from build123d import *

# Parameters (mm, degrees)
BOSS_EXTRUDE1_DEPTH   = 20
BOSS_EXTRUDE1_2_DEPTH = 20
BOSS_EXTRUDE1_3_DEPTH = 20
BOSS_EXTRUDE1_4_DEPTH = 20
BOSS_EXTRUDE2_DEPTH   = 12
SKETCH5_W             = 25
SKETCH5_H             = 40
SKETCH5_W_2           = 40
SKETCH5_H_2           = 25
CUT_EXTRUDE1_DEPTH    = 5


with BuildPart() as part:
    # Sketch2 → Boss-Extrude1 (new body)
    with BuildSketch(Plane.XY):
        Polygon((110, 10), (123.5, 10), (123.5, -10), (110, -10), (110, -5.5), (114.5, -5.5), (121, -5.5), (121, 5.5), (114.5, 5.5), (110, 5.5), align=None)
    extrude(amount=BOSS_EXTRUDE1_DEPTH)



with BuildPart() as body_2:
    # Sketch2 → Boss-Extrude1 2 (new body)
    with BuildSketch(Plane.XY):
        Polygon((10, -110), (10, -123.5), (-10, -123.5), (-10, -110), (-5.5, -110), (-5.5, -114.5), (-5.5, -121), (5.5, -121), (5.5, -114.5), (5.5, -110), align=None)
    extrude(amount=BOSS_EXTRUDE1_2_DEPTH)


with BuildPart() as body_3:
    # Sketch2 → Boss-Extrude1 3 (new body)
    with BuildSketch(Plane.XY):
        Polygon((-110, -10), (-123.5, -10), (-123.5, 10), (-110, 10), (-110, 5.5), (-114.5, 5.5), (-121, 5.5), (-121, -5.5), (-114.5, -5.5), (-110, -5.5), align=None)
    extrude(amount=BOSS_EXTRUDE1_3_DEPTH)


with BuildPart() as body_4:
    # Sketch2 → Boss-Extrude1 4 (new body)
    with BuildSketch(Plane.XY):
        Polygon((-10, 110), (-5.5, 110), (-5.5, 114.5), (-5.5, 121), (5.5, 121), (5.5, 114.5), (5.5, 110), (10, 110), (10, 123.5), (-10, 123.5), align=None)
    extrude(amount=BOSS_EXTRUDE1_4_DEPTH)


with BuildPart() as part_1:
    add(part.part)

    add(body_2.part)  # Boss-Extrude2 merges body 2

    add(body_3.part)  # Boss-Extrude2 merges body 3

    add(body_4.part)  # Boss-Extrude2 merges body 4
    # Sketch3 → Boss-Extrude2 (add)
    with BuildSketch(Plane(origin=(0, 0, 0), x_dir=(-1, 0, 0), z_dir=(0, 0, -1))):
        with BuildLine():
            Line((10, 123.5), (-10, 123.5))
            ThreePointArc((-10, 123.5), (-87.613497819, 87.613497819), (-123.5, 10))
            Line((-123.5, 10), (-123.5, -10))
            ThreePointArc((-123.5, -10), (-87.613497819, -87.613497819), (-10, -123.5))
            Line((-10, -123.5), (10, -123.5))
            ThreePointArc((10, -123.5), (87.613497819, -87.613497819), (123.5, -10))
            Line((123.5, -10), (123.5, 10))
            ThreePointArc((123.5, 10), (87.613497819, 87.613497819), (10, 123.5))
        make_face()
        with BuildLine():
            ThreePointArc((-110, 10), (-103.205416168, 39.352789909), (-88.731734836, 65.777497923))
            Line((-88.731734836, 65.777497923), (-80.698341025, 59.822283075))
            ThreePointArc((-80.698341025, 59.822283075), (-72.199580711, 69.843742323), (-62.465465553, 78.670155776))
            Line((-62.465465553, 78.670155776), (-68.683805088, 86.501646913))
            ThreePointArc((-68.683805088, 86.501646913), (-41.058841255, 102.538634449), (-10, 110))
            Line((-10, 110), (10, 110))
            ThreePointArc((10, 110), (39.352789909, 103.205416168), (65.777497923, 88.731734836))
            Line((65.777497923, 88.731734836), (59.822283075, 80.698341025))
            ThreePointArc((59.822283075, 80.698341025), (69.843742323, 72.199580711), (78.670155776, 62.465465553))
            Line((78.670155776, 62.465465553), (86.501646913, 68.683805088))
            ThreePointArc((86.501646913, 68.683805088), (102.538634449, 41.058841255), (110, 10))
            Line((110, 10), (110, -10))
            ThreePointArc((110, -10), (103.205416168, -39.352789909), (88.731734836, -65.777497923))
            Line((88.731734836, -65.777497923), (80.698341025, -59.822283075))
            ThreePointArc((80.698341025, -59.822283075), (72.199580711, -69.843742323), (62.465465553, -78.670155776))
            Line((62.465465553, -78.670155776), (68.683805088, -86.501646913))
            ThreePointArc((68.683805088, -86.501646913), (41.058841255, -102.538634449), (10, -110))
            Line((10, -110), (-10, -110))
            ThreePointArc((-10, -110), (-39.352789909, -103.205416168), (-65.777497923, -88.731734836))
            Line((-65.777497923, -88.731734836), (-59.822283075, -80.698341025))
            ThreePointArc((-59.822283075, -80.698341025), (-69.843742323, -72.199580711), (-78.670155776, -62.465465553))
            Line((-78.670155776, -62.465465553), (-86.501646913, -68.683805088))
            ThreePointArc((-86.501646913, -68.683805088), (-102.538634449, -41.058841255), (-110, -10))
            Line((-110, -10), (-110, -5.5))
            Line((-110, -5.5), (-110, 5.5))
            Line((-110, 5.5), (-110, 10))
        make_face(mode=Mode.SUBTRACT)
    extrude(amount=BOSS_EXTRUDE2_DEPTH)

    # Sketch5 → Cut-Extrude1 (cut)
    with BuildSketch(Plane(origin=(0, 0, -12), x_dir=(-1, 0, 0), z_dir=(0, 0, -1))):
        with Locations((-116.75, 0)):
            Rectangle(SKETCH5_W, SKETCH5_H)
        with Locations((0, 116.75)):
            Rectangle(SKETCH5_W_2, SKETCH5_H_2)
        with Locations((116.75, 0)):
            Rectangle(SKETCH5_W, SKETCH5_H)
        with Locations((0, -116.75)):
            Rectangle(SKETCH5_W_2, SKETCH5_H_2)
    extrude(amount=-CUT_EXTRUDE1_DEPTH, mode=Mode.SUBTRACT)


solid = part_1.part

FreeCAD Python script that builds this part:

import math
import FreeCAD as App
import Part
import Sketcher

V = App.Vector

doc = App.newDocument("Part")
body = doc.addObject("PartDesign::Body", "Body")

# Sketch on XY plane
sketch1 = body.newObject("Sketcher::SketchObject", "Sketch")
sketch1.AttachmentSupport = (doc.getObject("XY_Plane"), [""])
sketch1.MapMode = "FlatFace"
sketch1.addGeometry([
    Part.LineSegment(V(123.5, 10, 0), V(110, 10, 0)),  # 0
    Part.LineSegment(V(110, 10, 0), V(110, 5.5, 0)),  # 1
    Part.LineSegment(V(110, 5.5, 0), V(121, 5.5, 0)),  # 2
    Part.LineSegment(V(121, 5.5, 0), V(121, -5.5, 0)),  # 3
    Part.LineSegment(V(121, -5.5, 0), V(110, -5.5, 0)),  # 4
    Part.LineSegment(V(110, -5.5, 0), V(110, -10, 0)),  # 5
    Part.LineSegment(V(110, -10, 0), V(123.5, -10, 0)),  # 6
    Part.LineSegment(V(123.5, -10, 0), V(123.5, 10, 0)),  # 7
], False)
sketch1.addConstraint([
    Sketcher.Constraint("Coincident", 0, 2, 1, 1),
    Sketcher.Constraint("Coincident", 1, 2, 2, 1),
    Sketcher.Constraint("Coincident", 2, 2, 3, 1),
    Sketcher.Constraint("Coincident", 3, 2, 4, 1),
    Sketcher.Constraint("Coincident", 4, 2, 5, 1),
    Sketcher.Constraint("Coincident", 5, 2, 6, 1),
    Sketcher.Constraint("Coincident", 6, 2, 7, 1),
    Sketcher.Constraint("Coincident", 7, 2, 0, 1),
    Sketcher.Constraint("Horizontal", 0),
    Sketcher.Constraint("Vertical", 1),
    Sketcher.Constraint("Horizontal", 2),
    Sketcher.Constraint("Vertical", 3),
    Sketcher.Constraint("Horizontal", 4),
    Sketcher.Constraint("Vertical", 5),
    Sketcher.Constraint("Horizontal", 6),
    Sketcher.Constraint("Vertical", 7),
    Sketcher.Constraint("Symmetric", 1, 2, 4, 2, -1),
    Sketcher.Constraint("Equal", 4, 3),
    Sketcher.Constraint("Equal", 1, 5),
    Sketcher.Constraint("DistanceX", 2, 1, 2, 2, 11.0),
    Sketcher.Constraint("DistanceY", 7, 1, 7, 2, 20.0),
    Sketcher.Constraint("DistanceX", 0, 2, 0, 1, 13.5),
    Sketcher.Constraint("DistanceX", -1, 1, 0, 2, 110.0),
])
pad1 = body.newObject("PartDesign::Pad", "Pad")
pad1.Profile = sketch1
pad1.Length = 20
body2 = doc.addObject("PartDesign::Body", "Body001")

# Sketch on XY plane
sketch2 = body2.newObject("Sketcher::SketchObject", "Sketch001")
sketch2.AttachmentSupport = (doc.getObject("XY_Plane001"), [""])
sketch2.MapMode = "FlatFace"
sketch2.addGeometry([
    Part.LineSegment(V(10, -123.5, 0), V(10, -110, 0)),  # 0
    Part.LineSegment(V(10, -110, 0), V(5.5, -110, 0)),  # 1
    Part.LineSegment(V(5.5, -110, 0), V(5.5, -121, 0)),  # 2
    Part.LineSegment(V(5.5, -121, 0), V(-5.5, -121, 0)),  # 3
    Part.LineSegment(V(-5.5, -121, 0), V(-5.5, -110, 0)),  # 4
    Part.LineSegment(V(-5.5, -110, 0), V(-10, -110, 0)),  # 5
    Part.LineSegment(V(-10, -110, 0), V(-10, -123.5, 0)),  # 6
    Part.LineSegment(V(-10, -123.5, 0), V(10, -123.5, 0)),  # 7
], False)
sketch2.addConstraint([
    Sketcher.Constraint("Coincident", 0, 2, 1, 1),
    Sketcher.Constraint("Coincident", 1, 2, 2, 1),
    Sketcher.Constraint("Coincident", 2, 2, 3, 1),
    Sketcher.Constraint("Coincident", 3, 2, 4, 1),
    Sketcher.Constraint("Coincident", 4, 2, 5, 1),
    Sketcher.Constraint("Coincident", 5, 2, 6, 1),
    Sketcher.Constraint("Coincident", 6, 2, 7, 1),
    Sketcher.Constraint("Coincident", 7, 2, 0, 1),
    Sketcher.Constraint("Vertical", 0),
    Sketcher.Constraint("Horizontal", 1),
    Sketcher.Constraint("Vertical", 2),
    Sketcher.Constraint("Horizontal", 3),
    Sketcher.Constraint("Vertical", 4),
    Sketcher.Constraint("Horizontal", 5),
    Sketcher.Constraint("Vertical", 6),
    Sketcher.Constraint("Horizontal", 7),
    Sketcher.Constraint("Symmetric", 1, 2, 4, 2, -2),
    Sketcher.Constraint("Equal", 1, 5),
    Sketcher.Constraint("Equal", 3, 2),
    Sketcher.Constraint("DistanceX", 3, 2, 3, 1, 11.0),
    Sketcher.Constraint("DistanceX", 7, 1, 7, 2, 20.0),
    Sketcher.Constraint("DistanceY", 0, 1, 0, 2, 13.5),
    Sketcher.Constraint("DistanceY", 0, 2, -1, 1, 110.0),
])
pad2 = body2.newObject("PartDesign::Pad", "Pad001")
pad2.Profile = sketch2
pad2.Length = 20
body3 = doc.addObject("PartDesign::Body", "Body002")

# Sketch on XY plane
sketch3 = body3.newObject("Sketcher::SketchObject", "Sketch002")
sketch3.AttachmentSupport = (doc.getObject("XY_Plane002"), [""])
sketch3.MapMode = "FlatFace"
sketch3.addGeometry([
    Part.LineSegment(V(-123.5, -10, 0), V(-110, -10, 0)),  # 0
    Part.LineSegment(V(-110, -10, 0), V(-110, -5.5, 0)),  # 1
    Part.LineSegment(V(-110, -5.5, 0), V(-121, -5.5, 0)),  # 2
    Part.LineSegment(V(-121, -5.5, 0), V(-121, 5.5, 0)),  # 3
    Part.LineSegment(V(-121, 5.5, 0), V(-110, 5.5, 0)),  # 4
    Part.LineSegment(V(-110, 5.5, 0), V(-110, 10, 0)),  # 5
    Part.LineSegment(V(-110, 10, 0), V(-123.5, 10, 0)),  # 6
    Part.LineSegment(V(-123.5, 10, 0), V(-123.5, -10, 0)),  # 7
], False)
sketch3.addConstraint([
    Sketcher.Constraint("Coincident", 0, 2, 1, 1),
    Sketcher.Constraint("Coincident", 1, 2, 2, 1),
    Sketcher.Constraint("Coincident", 2, 2, 3, 1),
    Sketcher.Constraint("Coincident", 3, 2, 4, 1),
    Sketcher.Constraint("Coincident", 4, 2, 5, 1),
    Sketcher.Constraint("Coincident", 5, 2, 6, 1),
    Sketcher.Constraint("Coincident", 6, 2, 7, 1),
    Sketcher.Constraint("Coincident", 7, 2, 0, 1),
    Sketcher.Constraint("Horizontal", 0),
    Sketcher.Constraint("Vertical", 1),
    Sketcher.Constraint("Horizontal", 2),
    Sketcher.Constraint("Vertical", 3),
    Sketcher.Constraint("Horizontal", 4),
    Sketcher.Constraint("Vertical", 5),
    Sketcher.Constraint("Horizontal", 6),
    Sketcher.Constraint("Vertical", 7),
    Sketcher.Constraint("Symmetric", 1, 2, 4, 2, -1),
    Sketcher.Constraint("Equal", 4, 3),
    Sketcher.Constraint("Equal", 1, 5),
    Sketcher.Constraint("DistanceX", 2, 2, 2, 1, 11.0),
    Sketcher.Constraint("DistanceY", 7, 2, 7, 1, 20.0),
    Sketcher.Constraint("DistanceX", 0, 1, 0, 2, 13.5),
    Sketcher.Constraint("DistanceX", 0, 2, -1, 1, 110.0),
])
pad3 = body3.newObject("PartDesign::Pad", "Pad002")
pad3.Profile = sketch3
pad3.Length = 20
body4 = doc.addObject("PartDesign::Body", "Body003")

# Sketch on XY plane
sketch4 = body4.newObject("Sketcher::SketchObject", "Sketch003")
sketch4.AttachmentSupport = (doc.getObject("XY_Plane003"), [""])
sketch4.MapMode = "FlatFace"
sketch4.addGeometry([
    Part.LineSegment(V(-10, 110, 0), V(-5.5, 110, 0)),  # 0
    Part.LineSegment(V(-5.5, 110, 0), V(-5.5, 121, 0)),  # 1
    Part.LineSegment(V(-5.5, 121, 0), V(5.5, 121, 0)),  # 2
    Part.LineSegment(V(5.5, 121, 0), V(5.5, 110, 0)),  # 3
    Part.LineSegment(V(5.5, 110, 0), V(10, 110, 0)),  # 4
    Part.LineSegment(V(10, 110, 0), V(10, 123.5, 0)),  # 5
    Part.LineSegment(V(10, 123.5, 0), V(-10, 123.5, 0)),  # 6
    Part.LineSegment(V(-10, 123.5, 0), V(-10, 110, 0)),  # 7
], False)
sketch4.addConstraint([
    Sketcher.Constraint("Coincident", 0, 2, 1, 1),
    Sketcher.Constraint("Coincident", 1, 2, 2, 1),
    Sketcher.Constraint("Coincident", 2, 2, 3, 1),
    Sketcher.Constraint("Coincident", 3, 2, 4, 1),
    Sketcher.Constraint("Coincident", 4, 2, 5, 1),
    Sketcher.Constraint("Coincident", 5, 2, 6, 1),
    Sketcher.Constraint("Coincident", 6, 2, 7, 1),
    Sketcher.Constraint("Coincident", 7, 2, 0, 1),
    Sketcher.Constraint("Horizontal", 0),
    Sketcher.Constraint("Vertical", 1),
    Sketcher.Constraint("Horizontal", 2),
    Sketcher.Constraint("Vertical", 3),
    Sketcher.Constraint("Horizontal", 4),
    Sketcher.Constraint("Vertical", 5),
    Sketcher.Constraint("Horizontal", 6),
    Sketcher.Constraint("Vertical", 7),
    Sketcher.Constraint("Symmetric", 0, 2, 3, 2, -2),
    Sketcher.Constraint("Equal", 0, 4),
    Sketcher.Constraint("Equal", 2, 1),
    Sketcher.Constraint("DistanceX", 2, 1, 2, 2, 11.0),
    Sketcher.Constraint("DistanceX", 6, 2, 6, 1, 20.0),
    Sketcher.Constraint("DistanceY", 5, 1, 5, 2, 13.5),
    Sketcher.Constraint("DistanceY", -1, 1, 0, 2, 110.0),
])
pad4 = body4.newObject("PartDesign::Pad", "Pad003")
pad4.Profile = sketch4
pad4.Length = 20
body.AllowCompound = True
doc.recompute()

boolean = body.newObject("PartDesign::Boolean", "Boolean")
boolean.Type = "Fuse"
boolean.addObjects([body2])
doc.recompute()

boolean2 = body.newObject("PartDesign::Boolean", "Boolean001")
boolean2.Type = "Fuse"
boolean2.addObjects([body3])
doc.recompute()

boolean3 = body.newObject("PartDesign::Boolean", "Boolean002")
boolean3.Type = "Fuse"
boolean3.addObjects([body4])

# Sketch on XY plane
sketch5 = body.newObject("Sketcher::SketchObject", "Sketch004")
sketch5.AttachmentSupport = (doc.getObject("XY_Plane"), [""])
sketch5.MapMode = "FlatFace"
sketch5.addGeometry([
    Part.LineSegment(V(-10, 123.5, 0), V(10, 123.5, 0)),  # 0
    Part.ArcOfCircle(Part.Circle(V(0, 0, 0), V(0, 0, 1), 123.904197), math.radians(4.629235), math.radians(85.370765)),  # 1
    Part.LineSegment(V(123.5, 10, 0), V(123.5, -10, 0)),  # 2
    Part.ArcOfCircle(Part.Circle(V(0, 0, 0), V(0, 0, 1), 123.904197), math.radians(-85.370765), math.radians(-4.629235)),  # 3
    Part.LineSegment(V(10, -123.5, 0), V(-10, -123.5, 0)),  # 4
    Part.ArcOfCircle(Part.Circle(V(0, 0, 0), V(0, 0, 1), 123.904197), math.radians(-175.370765), math.radians(-94.629235)),  # 5
    Part.LineSegment(V(-123.5, -10, 0), V(-123.5, 10, 0)),  # 6
    Part.ArcOfCircle(Part.Circle(V(0, 0, 0), V(0, 0, 1), 123.904197), math.radians(94.629235), math.radians(175.370765)),  # 7
    Part.LineSegment(V(110, -10, 0), V(110, 10, 0)),  # 8
    Part.ArcOfCircle(Part.Circle(V(0, 0, 0), V(0, 0, 1), 110.45361), math.radians(5.194429), math.radians(36.549816)),  # 9
    Part.LineSegment(V(88.731735, 65.777498, 0), V(80.698341, 59.822283, 0)),  # 10
    Part.ArcOfCircle(Part.Circle(V(0, 0, 0), V(0, 0, 1), 100.45361), math.radians(36.549816), math.radians(51.549816)),  # 11
    Part.LineSegment(V(62.465466, 78.670156, 0), V(68.683805, 86.501647, 0)),  # 12
    Part.ArcOfCircle(Part.Circle(V(0, 0, 0), V(0, 0, 1), 110.45361), math.radians(51.549816), math.radians(84.805571)),  # 13
    Part.LineSegment(V(10, 110, 0), V(-10, 110, 0)),  # 14
    Part.ArcOfCircle(Part.Circle(V(0, 0, 0), V(0, 0, 1), 110.45361), math.radians(95.194429), math.radians(126.549816)),  # 15
    Part.LineSegment(V(-65.777498, 88.731735, 0), V(-59.822283, 80.698341, 0)),  # 16
    Part.ArcOfCircle(Part.Circle(V(0, 0, 0), V(0, 0, 1), 100.45361), math.radians(126.549816), math.radians(141.549816)),  # 17
    Part.LineSegment(V(-78.670156, 62.465466, 0), V(-86.501647, 68.683805, 0)),  # 18
    Part.ArcOfCircle(Part.Circle(V(0, 0, 0), V(0, 0, 1), 110.45361), math.radians(141.549816), math.radians(174.805571)),  # 19
    Part.LineSegment(V(-110, 10, 0), V(-110, -10, 0)),  # 20
    Part.ArcOfCircle(Part.Circle(V(0, 0, 0), V(0, 0, 1), 110.45361), math.radians(-174.805571), math.radians(-143.450184)),  # 21
    Part.LineSegment(V(-88.731735, -65.777498, 0), V(-80.698341, -59.822283, 0)),  # 22
    Part.ArcOfCircle(Part.Circle(V(0, 0, 0), V(0, 0, 1), 100.45361), math.radians(-143.450184), math.radians(-128.450184)),  # 23
    Part.LineSegment(V(-62.465466, -78.670156, 0), V(-68.683805, -86.501647, 0)),  # 24
    Part.ArcOfCircle(Part.Circle(V(0, 0, 0), V(0, 0, 1), 110.45361), math.radians(-128.450184), math.radians(-95.194429)),  # 25
    Part.LineSegment(V(-10, -110, 0), V(10, -110, 0)),  # 26
    Part.ArcOfCircle(Part.Circle(V(0, 0, 0), V(0, 0, 1), 110.45361), math.radians(-84.805571), math.radians(-53.450184)),  # 27
    Part.LineSegment(V(65.777498, -88.731735, 0), V(59.822283, -80.698341, 0)),  # 28
    Part.ArcOfCircle(Part.Circle(V(0, 0, 0), V(0, 0, 1), 100.45361), math.radians(-53.450184), math.radians(-38.450184)),  # 29
    Part.LineSegment(V(78.670156, -62.465466, 0), V(86.501647, -68.683805, 0)),  # 30
    Part.ArcOfCircle(Part.Circle(V(0, 0, 0), V(0, 0, 1), 110.45361), math.radians(-38.450184), math.radians(-5.194429)),  # 31
], False)
sketch5.addConstraint([
    Sketcher.Constraint("Coincident", 0, 2, 1, 2),
    Sketcher.Constraint("Coincident", 1, 1, 2, 1),
    Sketcher.Constraint("Coincident", 2, 2, 3, 2),
    Sketcher.Constraint("Coincident", 3, 1, 4, 1),
    Sketcher.Constraint("Coincident", 4, 2, 5, 2),
    Sketcher.Constraint("Coincident", 5, 1, 6, 1),
    Sketcher.Constraint("Coincident", 6, 2, 7, 2),
    Sketcher.Constraint("Coincident", 7, 1, 0, 1),
    Sketcher.Constraint("Coincident", 8, 2, 9, 1),
    Sketcher.Constraint("Coincident", 9, 2, 10, 1),
    Sketcher.Constraint("Coincident", 10, 2, 11, 1),
    Sketcher.Constraint("Coincident", 11, 2, 12, 1),
    Sketcher.Constraint("Coincident", 12, 2, 13, 1),
    Sketcher.Constraint("Coincident", 13, 2, 14, 1),
    Sketcher.Constraint("Coincident", 14, 2, 15, 1),
    Sketcher.Constraint("Coincident", 15, 2, 16, 1),
    Sketcher.Constraint("Coincident", 16, 2, 17, 1),
    Sketcher.Constraint("Coincident", 17, 2, 18, 1),
    Sketcher.Constraint("Coincident", 18, 2, 19, 1),
    Sketcher.Constraint("Coincident", 19, 2, 20, 1),
    Sketcher.Constraint("Coincident", 20, 2, 21, 1),
    Sketcher.Constraint("Coincident", 21, 2, 22, 1),
    Sketcher.Constraint("Coincident", 22, 2, 23, 1),
    Sketcher.Constraint("Coincident", 23, 2, 24, 1),
    Sketcher.Constraint("Coincident", 24, 2, 25, 1),
    Sketcher.Constraint("Coincident", 25, 2, 26, 1),
    Sketcher.Constraint("Coincident", 26, 2, 27, 1),
    Sketcher.Constraint("Coincident", 27, 2, 28, 1),
    Sketcher.Constraint("Coincident", 28, 2, 29, 1),
    Sketcher.Constraint("Coincident", 29, 2, 30, 1),
    Sketcher.Constraint("Coincident", 30, 2, 31, 1),
    Sketcher.Constraint("Coincident", 31, 2, 8, 1),
    Sketcher.Constraint("Horizontal", 0),
    Sketcher.Constraint("Vertical", 2),
    Sketcher.Constraint("Horizontal", 4),
    Sketcher.Constraint("Vertical", 6),
    Sketcher.Constraint("Vertical", 8),
    Sketcher.Constraint("Horizontal", 14),
    Sketcher.Constraint("Vertical", 20),
    Sketcher.Constraint("Horizontal", 26),
    Sketcher.Constraint("Coincident", 1, 3, -1, 1),
    Sketcher.Constraint("Coincident", 3, 3, -1, 1),
    Sketcher.Constraint("Coincident", 5, 3, -1, 1),
    Sketcher.Constraint("Coincident", 7, 3, -1, 1),
    Sketcher.Constraint("Coincident", 9, 3, -1, 1),
    Sketcher.Constraint("Coincident", 11, 3, -1, 1),
    Sketcher.Constraint("Coincident", 13, 3, -1, 1),
    Sketcher.Constraint("Coincident", 15, 3, -1, 1),
    Sketcher.Constraint("Coincident", 17, 3, -1, 1),
    Sketcher.Constraint("Coincident", 19, 3, -1, 1),
    Sketcher.Constraint("Coincident", 21, 3, -1, 1),
    Sketcher.Constraint("Coincident", 23, 3, -1, 1),
    Sketcher.Constraint("Coincident", 25, 3, -1, 1),
    Sketcher.Constraint("Coincident", 27, 3, -1, 1),
    Sketcher.Constraint("Coincident", 29, 3, -1, 1),
    Sketcher.Constraint("Coincident", 31, 3, -1, 1),
    Sketcher.Constraint("Equal", 1, 3),
    Sketcher.Constraint("Equal", 3, 5),
    Sketcher.Constraint("Equal", 5, 7),
    Sketcher.Constraint("Equal", 9, 13),
    Sketcher.Constraint("Equal", 13, 15),
    Sketcher.Constraint("Equal", 11, 17),
    Sketcher.Constraint("Equal", 15, 19),
    Sketcher.Constraint("Equal", 19, 21),
    Sketcher.Constraint("Equal", 17, 23),
    Sketcher.Constraint("Equal", 21, 25),
    Sketcher.Constraint("Equal", 25, 27),
    Sketcher.Constraint("Equal", 23, 29),
    Sketcher.Constraint("Equal", 27, 31),
    Sketcher.Constraint("Perpendicular", 10, 16),
    Sketcher.Constraint("Perpendicular", 12, 18),
    Sketcher.Constraint("Perpendicular", 16, 22),
    Sketcher.Constraint("Perpendicular", 18, 24),
    Sketcher.Constraint("Perpendicular", 22, 28),
    Sketcher.Constraint("Perpendicular", 24, 30),
    Sketcher.Constraint("Horizontal", 2, 2, 5, 1),
    Sketcher.Constraint("Horizontal", 6, 2, 8, 2),
    Sketcher.Constraint("Horizontal", 8, 2, 19, 2),
    Sketcher.Constraint("Vertical", 0, 2, 3, 1),
    Sketcher.Constraint("Vertical", 3, 1, 13, 2),
    Sketcher.Constraint("Vertical", 14, 2, 25, 2),
    Sketcher.Constraint("Equal", 26, 2),
    Sketcher.Constraint("DistanceX", 0, 1, 0, 2, 20.0),
    Sketcher.Constraint("Distance", 10, 10.0),
    Sketcher.Constraint("DistanceX", -1, 1, 8, 2, 110.0),
    Sketcher.Constraint("DistanceY", -1, 1, 0, 2, 123.5),
    Sketcher.Constraint("DistanceX", -1, 1, 10, 2, 80.698341),
    Sketcher.Constraint("DistanceY", -1, 1, 16, 2, 80.698341),
    Sketcher.Constraint("DistanceX", 22, 2, -1, 1, 80.698341),
    Sketcher.Constraint("DistanceY", 28, 2, -1, 1, 80.698341),
    Sketcher.Constraint("DistanceX", 11, 2, 9, 2, 26.266269),
    Sketcher.Constraint("DistanceX", 11, 2, 12, 2, 6.21834),
    Sketcher.Constraint("DistanceY", 17, 2, 15, 2, 26.266269),
    Sketcher.Constraint("DistanceX", 21, 2, 23, 2, 26.266269),
    Sketcher.Constraint("DistanceY", 27, 2, 29, 2, 26.266269),
    Sketcher.Constraint("DistanceX", -1, 1, 9, 2, 88.731735),
])
pad5 = body.newObject("PartDesign::Pad", "Pad004")
pad5.Profile = sketch5
pad5.Length = 12
pad5.Reversed = True

# Sketch on XY plane
sketch6 = body.newObject("Sketcher::SketchObject", "Sketch005")
sketch6.AttachmentSupport = (doc.getObject("XY_Plane"), [""])
sketch6.MapMode = "FlatFace"
sketch6.AttachmentOffset = App.Placement(V(0, 0, -12), App.Rotation())
sketch6.addGeometry([
    Part.LineSegment(V(129.25, 20, 0), V(129.25, -20, 0)),  # 0
    Part.LineSegment(V(129.25, -20, 0), V(104.25, -20, 0)),  # 1
    Part.LineSegment(V(104.25, -20, 0), V(104.25, 20, 0)),  # 2
    Part.LineSegment(V(104.25, 20, 0), V(129.25, 20, 0)),  # 3
    Part.LineSegment(V(20, 129.25, 0), V(20, 104.25, 0)),  # 4
    Part.LineSegment(V(20, 104.25, 0), V(-20, 104.25, 0)),  # 5
    Part.LineSegment(V(-20, 104.25, 0), V(-20, 129.25, 0)),  # 6
    Part.LineSegment(V(-20, 129.25, 0), V(20, 129.25, 0)),  # 7
    Part.LineSegment(V(-104.25, 20, 0), V(-104.25, -20, 0)),  # 8
    Part.LineSegment(V(-104.25, -20, 0), V(-129.25, -20, 0)),  # 9
    Part.LineSegment(V(-129.25, -20, 0), V(-129.25, 20, 0)),  # 10
    Part.LineSegment(V(-129.25, 20, 0), V(-104.25, 20, 0)),  # 11
    Part.LineSegment(V(20, -104.25, 0), V(20, -129.25, 0)),  # 12
    Part.LineSegment(V(20, -129.25, 0), V(-20, -129.25, 0)),  # 13
    Part.LineSegment(V(-20, -129.25, 0), V(-20, -104.25, 0)),  # 14
    Part.LineSegment(V(-20, -104.25, 0), V(20, -104.25, 0)),  # 15
], False)
sketch6.addConstraint([
    Sketcher.Constraint("Coincident", 0, 2, 1, 1),
    Sketcher.Constraint("Coincident", 1, 2, 2, 1),
    Sketcher.Constraint("Coincident", 2, 2, 3, 1),
    Sketcher.Constraint("Coincident", 3, 2, 0, 1),
    Sketcher.Constraint("Coincident", 4, 2, 5, 1),
    Sketcher.Constraint("Coincident", 5, 2, 6, 1),
    Sketcher.Constraint("Coincident", 6, 2, 7, 1),
    Sketcher.Constraint("Coincident", 7, 2, 4, 1),
    Sketcher.Constraint("Coincident", 8, 2, 9, 1),
    Sketcher.Constraint("Coincident", 9, 2, 10, 1),
    Sketcher.Constraint("Coincident", 10, 2, 11, 1),
    Sketcher.Constraint("Coincident", 11, 2, 8, 1),
    Sketcher.Constraint("Coincident", 12, 2, 13, 1),
    Sketcher.Constraint("Coincident", 13, 2, 14, 1),
    Sketcher.Constraint("Coincident", 14, 2, 15, 1),
    Sketcher.Constraint("Coincident", 15, 2, 12, 1),
    Sketcher.Constraint("Vertical", 0),
    Sketcher.Constraint("Horizontal", 1),
    Sketcher.Constraint("Vertical", 2),
    Sketcher.Constraint("Horizontal", 3),
    Sketcher.Constraint("Vertical", 4),
    Sketcher.Constraint("Horizontal", 5),
    Sketcher.Constraint("Vertical", 6),
    Sketcher.Constraint("Horizontal", 7),
    Sketcher.Constraint("Vertical", 8),
    Sketcher.Constraint("Horizontal", 9),
    Sketcher.Constraint("Vertical", 10),
    Sketcher.Constraint("Horizontal", 11),
    Sketcher.Constraint("Vertical", 12),
    Sketcher.Constraint("Horizontal", 13),
    Sketcher.Constraint("Vertical", 14),
    Sketcher.Constraint("Horizontal", 15),
    Sketcher.Constraint("Symmetric", 2, 2, 8, 2, -1, 1),
    Sketcher.Constraint("Symmetric", 0, 2, 10, 2, -1, 1),
    Sketcher.Constraint("Symmetric", 6, 2, 12, 2, -1, 1),
    Sketcher.Constraint("Symmetric", 4, 2, 14, 2, -1, 1),
    Sketcher.Constraint("Horizontal", 1, 2, 8, 2),
    Sketcher.Constraint("Vertical", 7, 2, 12, 2),
    Sketcher.Constraint("Equal", 15, 0),
    Sketcher.Constraint("Equal", 11, 4),
    Sketcher.Constraint("DistanceX", 1, 2, 1, 1, 25.0),
    Sketcher.Constraint("DistanceX", 5, 2, 5, 1, 40.0),
    Sketcher.Constraint("DistanceX", 8, 2, 1, 2, 208.5),
    Sketcher.Constraint("DistanceY", -1, 1, 4, 2, 104.25),
])
pocket1 = body.newObject("PartDesign::Pocket", "Pocket")
pocket1.Profile = sketch6
pocket1.Length = 5
pocket1.Reversed = True

doc.recompute()
